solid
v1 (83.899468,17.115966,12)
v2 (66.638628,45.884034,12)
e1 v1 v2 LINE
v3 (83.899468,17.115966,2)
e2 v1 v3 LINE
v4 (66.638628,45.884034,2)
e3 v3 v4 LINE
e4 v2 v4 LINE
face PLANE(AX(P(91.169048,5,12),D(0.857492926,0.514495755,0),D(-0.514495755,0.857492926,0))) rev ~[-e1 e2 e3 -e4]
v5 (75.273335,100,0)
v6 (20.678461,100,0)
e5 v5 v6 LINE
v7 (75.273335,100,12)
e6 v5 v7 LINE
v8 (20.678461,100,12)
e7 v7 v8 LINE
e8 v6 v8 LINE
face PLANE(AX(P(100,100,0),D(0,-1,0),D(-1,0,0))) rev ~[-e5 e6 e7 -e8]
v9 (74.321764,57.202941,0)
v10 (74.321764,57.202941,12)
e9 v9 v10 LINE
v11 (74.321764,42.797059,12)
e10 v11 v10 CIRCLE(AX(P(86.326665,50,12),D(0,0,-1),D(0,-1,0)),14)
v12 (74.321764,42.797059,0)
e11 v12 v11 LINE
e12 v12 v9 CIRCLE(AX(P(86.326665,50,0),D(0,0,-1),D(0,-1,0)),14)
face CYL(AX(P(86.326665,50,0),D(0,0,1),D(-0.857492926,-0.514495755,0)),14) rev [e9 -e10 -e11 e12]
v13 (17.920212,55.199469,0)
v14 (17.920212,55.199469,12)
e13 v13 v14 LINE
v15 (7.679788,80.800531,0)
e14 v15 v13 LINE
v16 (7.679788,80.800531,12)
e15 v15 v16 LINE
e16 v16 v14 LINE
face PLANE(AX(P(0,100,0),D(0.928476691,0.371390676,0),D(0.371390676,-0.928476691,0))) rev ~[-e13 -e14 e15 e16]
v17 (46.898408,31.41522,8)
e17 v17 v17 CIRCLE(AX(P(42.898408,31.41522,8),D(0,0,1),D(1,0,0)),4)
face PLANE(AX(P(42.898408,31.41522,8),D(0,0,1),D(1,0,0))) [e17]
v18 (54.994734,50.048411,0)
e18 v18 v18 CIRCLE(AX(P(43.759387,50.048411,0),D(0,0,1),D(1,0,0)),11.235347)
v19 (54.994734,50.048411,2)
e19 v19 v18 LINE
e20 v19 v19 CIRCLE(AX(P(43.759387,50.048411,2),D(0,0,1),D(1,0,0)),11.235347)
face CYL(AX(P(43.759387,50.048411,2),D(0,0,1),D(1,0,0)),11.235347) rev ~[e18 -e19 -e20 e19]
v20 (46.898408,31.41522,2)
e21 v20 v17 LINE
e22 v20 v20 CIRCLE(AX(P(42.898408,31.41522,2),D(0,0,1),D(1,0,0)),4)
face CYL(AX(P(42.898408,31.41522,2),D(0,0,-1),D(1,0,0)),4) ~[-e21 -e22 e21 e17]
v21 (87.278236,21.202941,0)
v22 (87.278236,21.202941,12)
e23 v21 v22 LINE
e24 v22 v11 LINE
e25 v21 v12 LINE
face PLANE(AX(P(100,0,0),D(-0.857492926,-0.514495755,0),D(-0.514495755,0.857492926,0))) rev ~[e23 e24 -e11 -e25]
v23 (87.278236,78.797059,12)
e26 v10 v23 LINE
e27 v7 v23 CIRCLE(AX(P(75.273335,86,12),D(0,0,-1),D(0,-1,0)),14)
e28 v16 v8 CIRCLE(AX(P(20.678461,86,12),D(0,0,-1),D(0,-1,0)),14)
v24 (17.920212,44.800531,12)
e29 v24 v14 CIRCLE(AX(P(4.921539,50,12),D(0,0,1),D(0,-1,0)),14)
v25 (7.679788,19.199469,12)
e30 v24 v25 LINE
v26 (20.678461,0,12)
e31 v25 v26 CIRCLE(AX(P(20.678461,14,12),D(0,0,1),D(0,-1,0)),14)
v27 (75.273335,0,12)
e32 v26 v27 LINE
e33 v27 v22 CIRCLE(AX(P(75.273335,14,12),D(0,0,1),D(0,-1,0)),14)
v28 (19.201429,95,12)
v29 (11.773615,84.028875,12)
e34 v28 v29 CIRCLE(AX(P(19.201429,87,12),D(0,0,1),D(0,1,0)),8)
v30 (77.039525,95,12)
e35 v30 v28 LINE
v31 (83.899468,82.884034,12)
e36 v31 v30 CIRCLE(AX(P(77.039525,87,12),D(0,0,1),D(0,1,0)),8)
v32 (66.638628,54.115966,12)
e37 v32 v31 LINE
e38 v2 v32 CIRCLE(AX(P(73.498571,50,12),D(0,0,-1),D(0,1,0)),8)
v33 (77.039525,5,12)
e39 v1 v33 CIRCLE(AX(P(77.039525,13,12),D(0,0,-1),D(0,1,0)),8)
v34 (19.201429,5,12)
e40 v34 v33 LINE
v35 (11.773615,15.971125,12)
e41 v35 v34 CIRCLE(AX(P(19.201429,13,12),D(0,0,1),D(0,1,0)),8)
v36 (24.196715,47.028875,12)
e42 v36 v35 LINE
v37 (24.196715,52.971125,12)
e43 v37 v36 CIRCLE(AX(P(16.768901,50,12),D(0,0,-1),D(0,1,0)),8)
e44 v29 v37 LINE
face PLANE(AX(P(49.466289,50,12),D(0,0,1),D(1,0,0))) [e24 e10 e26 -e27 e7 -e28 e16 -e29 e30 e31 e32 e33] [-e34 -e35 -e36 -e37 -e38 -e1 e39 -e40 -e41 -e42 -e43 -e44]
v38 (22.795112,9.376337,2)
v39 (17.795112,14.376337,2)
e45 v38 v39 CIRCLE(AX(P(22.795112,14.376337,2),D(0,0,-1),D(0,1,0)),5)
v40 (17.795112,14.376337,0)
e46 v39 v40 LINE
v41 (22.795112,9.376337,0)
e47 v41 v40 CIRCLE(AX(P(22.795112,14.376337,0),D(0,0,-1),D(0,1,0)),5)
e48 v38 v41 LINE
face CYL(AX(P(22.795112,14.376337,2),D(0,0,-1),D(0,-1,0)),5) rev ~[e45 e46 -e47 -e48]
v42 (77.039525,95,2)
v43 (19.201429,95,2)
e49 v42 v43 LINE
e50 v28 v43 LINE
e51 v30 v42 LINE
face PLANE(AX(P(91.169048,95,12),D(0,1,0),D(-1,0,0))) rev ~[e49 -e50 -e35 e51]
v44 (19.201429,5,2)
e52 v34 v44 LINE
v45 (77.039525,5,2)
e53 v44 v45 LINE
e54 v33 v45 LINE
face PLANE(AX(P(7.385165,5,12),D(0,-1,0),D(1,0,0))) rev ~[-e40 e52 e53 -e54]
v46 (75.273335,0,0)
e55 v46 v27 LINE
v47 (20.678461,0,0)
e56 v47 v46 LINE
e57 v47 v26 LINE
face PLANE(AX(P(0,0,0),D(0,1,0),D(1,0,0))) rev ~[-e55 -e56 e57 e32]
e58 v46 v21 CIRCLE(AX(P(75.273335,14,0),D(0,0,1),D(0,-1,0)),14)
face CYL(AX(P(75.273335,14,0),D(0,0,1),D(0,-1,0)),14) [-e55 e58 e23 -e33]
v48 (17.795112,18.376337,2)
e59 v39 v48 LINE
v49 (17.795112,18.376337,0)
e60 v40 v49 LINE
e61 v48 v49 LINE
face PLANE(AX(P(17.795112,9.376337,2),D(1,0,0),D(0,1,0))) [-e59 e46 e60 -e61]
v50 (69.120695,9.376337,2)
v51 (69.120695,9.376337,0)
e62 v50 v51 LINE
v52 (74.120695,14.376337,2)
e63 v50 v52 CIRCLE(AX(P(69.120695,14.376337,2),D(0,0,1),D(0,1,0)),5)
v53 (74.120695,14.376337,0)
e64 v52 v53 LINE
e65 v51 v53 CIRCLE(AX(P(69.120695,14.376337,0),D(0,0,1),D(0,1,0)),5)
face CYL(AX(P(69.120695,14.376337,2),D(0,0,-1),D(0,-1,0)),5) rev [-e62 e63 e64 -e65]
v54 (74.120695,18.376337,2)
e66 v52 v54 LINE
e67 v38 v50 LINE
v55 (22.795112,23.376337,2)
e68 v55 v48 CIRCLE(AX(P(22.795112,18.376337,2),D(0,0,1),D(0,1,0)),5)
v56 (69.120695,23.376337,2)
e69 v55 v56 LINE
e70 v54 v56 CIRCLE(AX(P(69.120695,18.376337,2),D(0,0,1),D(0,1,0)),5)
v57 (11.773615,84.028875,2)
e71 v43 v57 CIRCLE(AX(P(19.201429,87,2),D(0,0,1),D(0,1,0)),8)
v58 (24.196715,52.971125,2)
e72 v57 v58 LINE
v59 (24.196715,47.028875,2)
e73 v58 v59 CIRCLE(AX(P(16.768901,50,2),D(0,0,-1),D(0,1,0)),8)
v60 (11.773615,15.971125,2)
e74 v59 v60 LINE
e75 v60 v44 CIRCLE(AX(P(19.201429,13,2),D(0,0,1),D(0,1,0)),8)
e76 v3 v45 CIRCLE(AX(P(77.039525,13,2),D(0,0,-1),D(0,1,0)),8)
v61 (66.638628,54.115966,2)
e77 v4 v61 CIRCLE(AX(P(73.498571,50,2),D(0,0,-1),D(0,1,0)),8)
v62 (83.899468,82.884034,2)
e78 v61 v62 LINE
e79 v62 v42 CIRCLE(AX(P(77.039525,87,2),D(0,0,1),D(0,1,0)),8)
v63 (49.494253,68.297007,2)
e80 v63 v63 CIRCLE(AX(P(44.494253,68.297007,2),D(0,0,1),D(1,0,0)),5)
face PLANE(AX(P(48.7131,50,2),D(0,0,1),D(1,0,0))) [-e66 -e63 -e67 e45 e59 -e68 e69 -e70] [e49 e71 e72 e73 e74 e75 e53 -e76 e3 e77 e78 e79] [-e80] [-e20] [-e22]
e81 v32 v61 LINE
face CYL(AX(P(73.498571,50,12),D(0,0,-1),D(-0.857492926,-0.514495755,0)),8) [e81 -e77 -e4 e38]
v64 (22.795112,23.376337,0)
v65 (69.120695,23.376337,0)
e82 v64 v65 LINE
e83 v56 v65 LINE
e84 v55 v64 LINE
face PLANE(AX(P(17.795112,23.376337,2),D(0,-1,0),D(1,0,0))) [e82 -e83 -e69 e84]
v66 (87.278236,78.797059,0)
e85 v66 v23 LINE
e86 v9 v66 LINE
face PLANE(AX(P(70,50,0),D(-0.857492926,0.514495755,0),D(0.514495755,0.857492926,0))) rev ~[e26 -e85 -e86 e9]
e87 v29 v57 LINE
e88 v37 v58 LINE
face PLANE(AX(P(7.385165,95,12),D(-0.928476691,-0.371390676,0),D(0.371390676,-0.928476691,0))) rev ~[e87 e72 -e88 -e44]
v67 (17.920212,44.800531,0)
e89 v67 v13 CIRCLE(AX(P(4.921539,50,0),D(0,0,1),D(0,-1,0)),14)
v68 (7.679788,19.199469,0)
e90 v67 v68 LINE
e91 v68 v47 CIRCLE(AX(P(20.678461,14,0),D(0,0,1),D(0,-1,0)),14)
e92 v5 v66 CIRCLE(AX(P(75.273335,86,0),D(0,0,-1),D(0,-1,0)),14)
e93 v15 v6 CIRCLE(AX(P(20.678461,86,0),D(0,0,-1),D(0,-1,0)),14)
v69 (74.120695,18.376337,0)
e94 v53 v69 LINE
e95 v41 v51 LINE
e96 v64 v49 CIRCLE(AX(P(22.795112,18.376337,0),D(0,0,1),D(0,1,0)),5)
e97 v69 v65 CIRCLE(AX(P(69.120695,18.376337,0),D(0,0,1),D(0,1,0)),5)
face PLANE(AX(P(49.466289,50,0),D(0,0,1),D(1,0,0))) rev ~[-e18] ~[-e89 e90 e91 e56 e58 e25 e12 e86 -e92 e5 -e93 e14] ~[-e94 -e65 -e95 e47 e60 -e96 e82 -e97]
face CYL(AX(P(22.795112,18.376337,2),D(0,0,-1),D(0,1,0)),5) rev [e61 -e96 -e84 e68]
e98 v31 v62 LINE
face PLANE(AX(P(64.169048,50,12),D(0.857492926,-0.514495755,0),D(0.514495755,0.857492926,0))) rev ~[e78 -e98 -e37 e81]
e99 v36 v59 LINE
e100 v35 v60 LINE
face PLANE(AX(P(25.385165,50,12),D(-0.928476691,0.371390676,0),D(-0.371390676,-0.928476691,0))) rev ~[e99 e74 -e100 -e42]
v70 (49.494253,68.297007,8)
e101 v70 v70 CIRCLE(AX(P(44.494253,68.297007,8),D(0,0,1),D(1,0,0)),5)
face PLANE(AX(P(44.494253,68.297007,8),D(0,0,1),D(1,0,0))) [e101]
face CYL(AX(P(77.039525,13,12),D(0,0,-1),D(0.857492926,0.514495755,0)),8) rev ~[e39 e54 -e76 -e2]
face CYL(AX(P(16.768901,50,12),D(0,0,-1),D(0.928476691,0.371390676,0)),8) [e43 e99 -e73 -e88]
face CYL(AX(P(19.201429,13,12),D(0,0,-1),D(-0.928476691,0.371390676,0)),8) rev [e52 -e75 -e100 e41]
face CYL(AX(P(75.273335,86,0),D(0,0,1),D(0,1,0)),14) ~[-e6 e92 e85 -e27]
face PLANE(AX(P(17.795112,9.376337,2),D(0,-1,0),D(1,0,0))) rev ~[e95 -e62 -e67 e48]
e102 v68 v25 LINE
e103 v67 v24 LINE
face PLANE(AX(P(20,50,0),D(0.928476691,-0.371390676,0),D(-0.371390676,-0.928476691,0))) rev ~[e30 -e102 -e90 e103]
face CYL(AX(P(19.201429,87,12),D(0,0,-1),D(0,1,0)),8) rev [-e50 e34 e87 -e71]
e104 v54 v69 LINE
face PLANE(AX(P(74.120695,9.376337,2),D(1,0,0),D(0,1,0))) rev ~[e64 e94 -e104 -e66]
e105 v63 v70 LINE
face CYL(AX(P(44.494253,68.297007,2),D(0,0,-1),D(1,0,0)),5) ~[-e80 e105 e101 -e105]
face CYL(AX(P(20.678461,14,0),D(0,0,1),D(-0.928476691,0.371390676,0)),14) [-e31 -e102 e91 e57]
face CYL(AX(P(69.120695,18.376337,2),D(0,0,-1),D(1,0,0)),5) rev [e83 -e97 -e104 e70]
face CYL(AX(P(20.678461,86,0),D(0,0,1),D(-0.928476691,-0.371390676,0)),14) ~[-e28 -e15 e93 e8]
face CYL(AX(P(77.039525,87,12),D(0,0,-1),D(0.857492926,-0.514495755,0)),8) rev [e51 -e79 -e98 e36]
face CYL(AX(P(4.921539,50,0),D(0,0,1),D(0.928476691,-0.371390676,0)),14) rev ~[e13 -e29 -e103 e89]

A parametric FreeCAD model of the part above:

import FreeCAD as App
import Part
import Sketcher
from FreeCAD import Vector
Q = App.Units.Quantity


def edges_at(feature, points):
    """Names of the edges that pass closest to the given points."""
    edges = feature.Shape.Edges
    near = lambda p: min(range(len(edges)), key=lambda i: edges[i].distToShape(Part.Vertex(*p))[0])
    return sorted({f"Edge{near(p) + 1}" for p in points})


def add_polygon(sketch, points):
    """Adds a closed chain of lines whose ends are joined by coincident constraints."""
    first, n = sketch.GeometryCount, len(points)
    for a, b in zip(points, points[1:] + points[:1]):
        sketch.addGeometry(Part.LineSegment(App.Vector(*a, 0), App.Vector(*b, 0)), False)
    for i in range(n):
        sketch.addConstraint(Sketcher.Constraint("Coincident", first + i, 2, first + (i + 1) % n, 1))

doc = App.newDocument("Part")
body = doc.addObject("PartDesign::Body", "Body")

sketch1 = body.newObject("Sketcher::SketchObject", "Sketch")
sketch1.AttachmentSupport = (doc.getObject("XY_Plane"), [""])
sketch1.MapMode = "FlatFace"
add_polygon(sketch1, [(20, 50), (0, 0), (100, 0), (70, 50), (100, 100), (0, 100)])
sketch1.addConstraint([
    Sketcher.Constraint("Horizontal", 1),
    Sketcher.Constraint("Horizontal", 4),
    Sketcher.Constraint("Coincident", 0, 2, -1, 1),
    Sketcher.Constraint("PointOnObject", 4, 2, -2),
    Sketcher.Constraint("Horizontal", 2, 2, 5, 2),
    Sketcher.Constraint("Vertical", 1, 2, 3, 2),
    Sketcher.Constraint("Equal", 2, 3),
    Sketcher.Constraint("DistanceX", 1, 1, 1, 2, Q("100 mm")),
    Sketcher.Constraint("DistanceX", -1, 1, 2, 2, Q("70 mm")),
    Sketcher.Constraint("DistanceY", -1, 1, 2, 2, Q("50 mm")),
    Sketcher.Constraint("DistanceX", -1, 1, 5, 2, Q("20 mm")),
])
pad1 = body.newObject("PartDesign::Pad", "Pad")
pad1.Profile = sketch1
pad1.Length = 12

sketch2 = body.newObject("Sketcher::SketchObject", "Sketch001")
sketch2.AttachmentSupport = (doc.getObject("XY_Plane"), [""])
sketch2.MapMode = "FlatFace"
sketch2.AttachmentOffset = App.Placement(Vector(0, 0, 12), App.Rotation())
add_polygon(sketch2, [(91, 5), (64, 50), (91, 95), (7, 95), (25, 50), (7, 5)])
sketch2.addConstraint([
    Sketcher.Constraint("Horizontal", 2),
    Sketcher.Constraint("Horizontal", 5),
    Sketcher.Constraint("Horizontal", 0, 2, 3, 2),
    Sketcher.Constraint("Vertical", 2, 2, 4, 2),
    Sketcher.Constraint("Vertical", 1, 2, 5, 2),
    Sketcher.Constraint("Equal", 0, 1),
    Sketcher.Constraint("DistanceY", -1, 1, 0, 2, Q("50 mm")),
    Sketcher.Constraint("DistanceY", -1, 1, 1, 2, Q("95 mm")),
    Sketcher.Constraint("DistanceX", 0, 2, 1, 2, Q("27 mm")),
    Sketcher.Constraint("DistanceX", 2, 2, 3, 2, Q("18 mm")),
    Sketcher.Constraint("DistanceX", 2, 2, 2, 1, Q("83.783883 mm")),
    Sketcher.Constraint("DistanceX", -1, 1, 0, 2, Q("64.169048 mm")),
])
pocket1 = body.newObject("PartDesign::Pocket", "Pocket")
pocket1.Profile = sketch2
pocket1.Length = 10

sketch3 = body.newObject("Sketcher::SketchObject", "Sketch002")
sketch3.AttachmentSupport = (doc.getObject("XY_Plane"), [""])
sketch3.MapMode = "FlatFace"
sketch3.AttachmentOffset = App.Placement(Vector(0, 0, 2), App.Rotation())
sketch3.addGeometry([
    Part.Circle(Vector(42.9, 31.4, 0), Vector(0, 0, 1), 4),
    Part.Circle(Vector(44.5, 68.3, 0), Vector(0, 0, 1), 5),
], False)
sketch3.addConstraint([
    Sketcher.Constraint("Diameter", 0, Q("8 mm")),
    Sketcher.Constraint("Diameter", 1, Q("10 mm")),
    Sketcher.Constraint("DistanceX", -1, 1, 0, 3, Q("42.898408 mm")),
    Sketcher.Constraint("DistanceY", -1, 1, 0, 3, Q("31.41522 mm")),
    Sketcher.Constraint("DistanceX", -1, 1, 1, 3, Q("44.494253 mm")),
    Sketcher.Constraint("DistanceY", -1, 1, 1, 3, Q("68.297007 mm")),
])
pad2 = body.newObject("PartDesign::Pad", "Pad001")
pad2.Profile = sketch3
pad2.Length = 6
doc.recompute()

fillet = body.newObject("PartDesign::Fillet", "Fillet")
fillet.Base = (pad2, edges_at(pad2, [
    (7.385, 95, 7),
    (25.385, 50, 7),
    (7.385, 5, 7),
    (91.169, 95, 7),
    (64.169, 50, 7),
    (91.169, 5, 7),
]))
fillet.Radius = 8
doc.recompute()

fillet2 = body.newObject("PartDesign::Fillet", "Fillet001")
fillet2.Base = (fillet, edges_at(fillet, [
    (20, 50, 6),
    (0, 100, 6),
    (100, 100, 6),
    (70, 50, 6),
    (100, 0, 6),
    (0, 0, 6),
]))
fillet2.Radius = 14

sketch4 = body.newObject("Sketcher::SketchObject", "Sketch003")
sketch4.AttachmentSupport = (doc.getObject("XY_Plane"), [""])
sketch4.MapMode = "FlatFace"
sketch4.AttachmentOffset = App.Placement(Vector(0, 0, 2), App.Rotation())
sketch4.addGeometry(Part.Circle(Vector(44, 50, 0), Vector(0, 0, 1), 11), False)
sketch4.addConstraint([
    Sketcher.Constraint("Diameter", 0, Q("22.470694 mm")),
    Sketcher.Constraint("DistanceY", -1, 1, 0, 3, Q("50.048411 mm")),
    Sketcher.Constraint("DistanceX", -1, 1, 0, 3, Q("43.759387 mm")),
])
pocket2 = body.newObject("PartDesign::Pocket", "Pocket001")
pocket2.Profile = sketch4
pocket2.Length = 25

sketch5 = body.newObject("Sketcher::SketchObject", "Sketch004")
sketch5.AttachmentSupport = (doc.getObject("XY_Plane"), [""])
sketch5.MapMode = "FlatFace"
sketch5.AttachmentOffset = App.Placement(Vector(0, 0, 2), App.Rotation())
add_polygon(sketch5, [(18, 23), (18, 9), (74, 9), (74, 23)])
sketch5.addConstraint([
    Sketcher.Constraint("Vertical", 0),
    Sketcher.Constraint("Horizontal", 1),
    Sketcher.Constraint("Vertical", 2),
    Sketcher.Constraint("Horizontal", 3),
    Sketcher.Constraint("DistanceY", 0, 2, 0, 1, Q("14 mm")),
    Sketcher.Constraint("DistanceX", 1, 1, 1, 2, Q("56.325583 mm")),
    Sketcher.Constraint("DistanceX", -1, 1, 0, 2, Q("17.795112 mm")),
    Sketcher.Constraint("DistanceY", -1, 1, 0, 2, Q("9.376337 mm")),
])
pocket3 = body.newObject("PartDesign::Pocket", "Pocket002")
pocket3.Profile = sketch5
pocket3.Length = 25
doc.recompute()

fillet3 = body.newObject("PartDesign::Fillet", "Fillet002")
fillet3.Base = (pocket3, edges_at(pocket3, [
    (17.795, 23.376, 1),
    (74.121, 23.376, 1),
    (74.121, 9.376, 1),
    (17.795, 9.376, 1),
]))
fillet3.Radius = 5

doc.recompute()
